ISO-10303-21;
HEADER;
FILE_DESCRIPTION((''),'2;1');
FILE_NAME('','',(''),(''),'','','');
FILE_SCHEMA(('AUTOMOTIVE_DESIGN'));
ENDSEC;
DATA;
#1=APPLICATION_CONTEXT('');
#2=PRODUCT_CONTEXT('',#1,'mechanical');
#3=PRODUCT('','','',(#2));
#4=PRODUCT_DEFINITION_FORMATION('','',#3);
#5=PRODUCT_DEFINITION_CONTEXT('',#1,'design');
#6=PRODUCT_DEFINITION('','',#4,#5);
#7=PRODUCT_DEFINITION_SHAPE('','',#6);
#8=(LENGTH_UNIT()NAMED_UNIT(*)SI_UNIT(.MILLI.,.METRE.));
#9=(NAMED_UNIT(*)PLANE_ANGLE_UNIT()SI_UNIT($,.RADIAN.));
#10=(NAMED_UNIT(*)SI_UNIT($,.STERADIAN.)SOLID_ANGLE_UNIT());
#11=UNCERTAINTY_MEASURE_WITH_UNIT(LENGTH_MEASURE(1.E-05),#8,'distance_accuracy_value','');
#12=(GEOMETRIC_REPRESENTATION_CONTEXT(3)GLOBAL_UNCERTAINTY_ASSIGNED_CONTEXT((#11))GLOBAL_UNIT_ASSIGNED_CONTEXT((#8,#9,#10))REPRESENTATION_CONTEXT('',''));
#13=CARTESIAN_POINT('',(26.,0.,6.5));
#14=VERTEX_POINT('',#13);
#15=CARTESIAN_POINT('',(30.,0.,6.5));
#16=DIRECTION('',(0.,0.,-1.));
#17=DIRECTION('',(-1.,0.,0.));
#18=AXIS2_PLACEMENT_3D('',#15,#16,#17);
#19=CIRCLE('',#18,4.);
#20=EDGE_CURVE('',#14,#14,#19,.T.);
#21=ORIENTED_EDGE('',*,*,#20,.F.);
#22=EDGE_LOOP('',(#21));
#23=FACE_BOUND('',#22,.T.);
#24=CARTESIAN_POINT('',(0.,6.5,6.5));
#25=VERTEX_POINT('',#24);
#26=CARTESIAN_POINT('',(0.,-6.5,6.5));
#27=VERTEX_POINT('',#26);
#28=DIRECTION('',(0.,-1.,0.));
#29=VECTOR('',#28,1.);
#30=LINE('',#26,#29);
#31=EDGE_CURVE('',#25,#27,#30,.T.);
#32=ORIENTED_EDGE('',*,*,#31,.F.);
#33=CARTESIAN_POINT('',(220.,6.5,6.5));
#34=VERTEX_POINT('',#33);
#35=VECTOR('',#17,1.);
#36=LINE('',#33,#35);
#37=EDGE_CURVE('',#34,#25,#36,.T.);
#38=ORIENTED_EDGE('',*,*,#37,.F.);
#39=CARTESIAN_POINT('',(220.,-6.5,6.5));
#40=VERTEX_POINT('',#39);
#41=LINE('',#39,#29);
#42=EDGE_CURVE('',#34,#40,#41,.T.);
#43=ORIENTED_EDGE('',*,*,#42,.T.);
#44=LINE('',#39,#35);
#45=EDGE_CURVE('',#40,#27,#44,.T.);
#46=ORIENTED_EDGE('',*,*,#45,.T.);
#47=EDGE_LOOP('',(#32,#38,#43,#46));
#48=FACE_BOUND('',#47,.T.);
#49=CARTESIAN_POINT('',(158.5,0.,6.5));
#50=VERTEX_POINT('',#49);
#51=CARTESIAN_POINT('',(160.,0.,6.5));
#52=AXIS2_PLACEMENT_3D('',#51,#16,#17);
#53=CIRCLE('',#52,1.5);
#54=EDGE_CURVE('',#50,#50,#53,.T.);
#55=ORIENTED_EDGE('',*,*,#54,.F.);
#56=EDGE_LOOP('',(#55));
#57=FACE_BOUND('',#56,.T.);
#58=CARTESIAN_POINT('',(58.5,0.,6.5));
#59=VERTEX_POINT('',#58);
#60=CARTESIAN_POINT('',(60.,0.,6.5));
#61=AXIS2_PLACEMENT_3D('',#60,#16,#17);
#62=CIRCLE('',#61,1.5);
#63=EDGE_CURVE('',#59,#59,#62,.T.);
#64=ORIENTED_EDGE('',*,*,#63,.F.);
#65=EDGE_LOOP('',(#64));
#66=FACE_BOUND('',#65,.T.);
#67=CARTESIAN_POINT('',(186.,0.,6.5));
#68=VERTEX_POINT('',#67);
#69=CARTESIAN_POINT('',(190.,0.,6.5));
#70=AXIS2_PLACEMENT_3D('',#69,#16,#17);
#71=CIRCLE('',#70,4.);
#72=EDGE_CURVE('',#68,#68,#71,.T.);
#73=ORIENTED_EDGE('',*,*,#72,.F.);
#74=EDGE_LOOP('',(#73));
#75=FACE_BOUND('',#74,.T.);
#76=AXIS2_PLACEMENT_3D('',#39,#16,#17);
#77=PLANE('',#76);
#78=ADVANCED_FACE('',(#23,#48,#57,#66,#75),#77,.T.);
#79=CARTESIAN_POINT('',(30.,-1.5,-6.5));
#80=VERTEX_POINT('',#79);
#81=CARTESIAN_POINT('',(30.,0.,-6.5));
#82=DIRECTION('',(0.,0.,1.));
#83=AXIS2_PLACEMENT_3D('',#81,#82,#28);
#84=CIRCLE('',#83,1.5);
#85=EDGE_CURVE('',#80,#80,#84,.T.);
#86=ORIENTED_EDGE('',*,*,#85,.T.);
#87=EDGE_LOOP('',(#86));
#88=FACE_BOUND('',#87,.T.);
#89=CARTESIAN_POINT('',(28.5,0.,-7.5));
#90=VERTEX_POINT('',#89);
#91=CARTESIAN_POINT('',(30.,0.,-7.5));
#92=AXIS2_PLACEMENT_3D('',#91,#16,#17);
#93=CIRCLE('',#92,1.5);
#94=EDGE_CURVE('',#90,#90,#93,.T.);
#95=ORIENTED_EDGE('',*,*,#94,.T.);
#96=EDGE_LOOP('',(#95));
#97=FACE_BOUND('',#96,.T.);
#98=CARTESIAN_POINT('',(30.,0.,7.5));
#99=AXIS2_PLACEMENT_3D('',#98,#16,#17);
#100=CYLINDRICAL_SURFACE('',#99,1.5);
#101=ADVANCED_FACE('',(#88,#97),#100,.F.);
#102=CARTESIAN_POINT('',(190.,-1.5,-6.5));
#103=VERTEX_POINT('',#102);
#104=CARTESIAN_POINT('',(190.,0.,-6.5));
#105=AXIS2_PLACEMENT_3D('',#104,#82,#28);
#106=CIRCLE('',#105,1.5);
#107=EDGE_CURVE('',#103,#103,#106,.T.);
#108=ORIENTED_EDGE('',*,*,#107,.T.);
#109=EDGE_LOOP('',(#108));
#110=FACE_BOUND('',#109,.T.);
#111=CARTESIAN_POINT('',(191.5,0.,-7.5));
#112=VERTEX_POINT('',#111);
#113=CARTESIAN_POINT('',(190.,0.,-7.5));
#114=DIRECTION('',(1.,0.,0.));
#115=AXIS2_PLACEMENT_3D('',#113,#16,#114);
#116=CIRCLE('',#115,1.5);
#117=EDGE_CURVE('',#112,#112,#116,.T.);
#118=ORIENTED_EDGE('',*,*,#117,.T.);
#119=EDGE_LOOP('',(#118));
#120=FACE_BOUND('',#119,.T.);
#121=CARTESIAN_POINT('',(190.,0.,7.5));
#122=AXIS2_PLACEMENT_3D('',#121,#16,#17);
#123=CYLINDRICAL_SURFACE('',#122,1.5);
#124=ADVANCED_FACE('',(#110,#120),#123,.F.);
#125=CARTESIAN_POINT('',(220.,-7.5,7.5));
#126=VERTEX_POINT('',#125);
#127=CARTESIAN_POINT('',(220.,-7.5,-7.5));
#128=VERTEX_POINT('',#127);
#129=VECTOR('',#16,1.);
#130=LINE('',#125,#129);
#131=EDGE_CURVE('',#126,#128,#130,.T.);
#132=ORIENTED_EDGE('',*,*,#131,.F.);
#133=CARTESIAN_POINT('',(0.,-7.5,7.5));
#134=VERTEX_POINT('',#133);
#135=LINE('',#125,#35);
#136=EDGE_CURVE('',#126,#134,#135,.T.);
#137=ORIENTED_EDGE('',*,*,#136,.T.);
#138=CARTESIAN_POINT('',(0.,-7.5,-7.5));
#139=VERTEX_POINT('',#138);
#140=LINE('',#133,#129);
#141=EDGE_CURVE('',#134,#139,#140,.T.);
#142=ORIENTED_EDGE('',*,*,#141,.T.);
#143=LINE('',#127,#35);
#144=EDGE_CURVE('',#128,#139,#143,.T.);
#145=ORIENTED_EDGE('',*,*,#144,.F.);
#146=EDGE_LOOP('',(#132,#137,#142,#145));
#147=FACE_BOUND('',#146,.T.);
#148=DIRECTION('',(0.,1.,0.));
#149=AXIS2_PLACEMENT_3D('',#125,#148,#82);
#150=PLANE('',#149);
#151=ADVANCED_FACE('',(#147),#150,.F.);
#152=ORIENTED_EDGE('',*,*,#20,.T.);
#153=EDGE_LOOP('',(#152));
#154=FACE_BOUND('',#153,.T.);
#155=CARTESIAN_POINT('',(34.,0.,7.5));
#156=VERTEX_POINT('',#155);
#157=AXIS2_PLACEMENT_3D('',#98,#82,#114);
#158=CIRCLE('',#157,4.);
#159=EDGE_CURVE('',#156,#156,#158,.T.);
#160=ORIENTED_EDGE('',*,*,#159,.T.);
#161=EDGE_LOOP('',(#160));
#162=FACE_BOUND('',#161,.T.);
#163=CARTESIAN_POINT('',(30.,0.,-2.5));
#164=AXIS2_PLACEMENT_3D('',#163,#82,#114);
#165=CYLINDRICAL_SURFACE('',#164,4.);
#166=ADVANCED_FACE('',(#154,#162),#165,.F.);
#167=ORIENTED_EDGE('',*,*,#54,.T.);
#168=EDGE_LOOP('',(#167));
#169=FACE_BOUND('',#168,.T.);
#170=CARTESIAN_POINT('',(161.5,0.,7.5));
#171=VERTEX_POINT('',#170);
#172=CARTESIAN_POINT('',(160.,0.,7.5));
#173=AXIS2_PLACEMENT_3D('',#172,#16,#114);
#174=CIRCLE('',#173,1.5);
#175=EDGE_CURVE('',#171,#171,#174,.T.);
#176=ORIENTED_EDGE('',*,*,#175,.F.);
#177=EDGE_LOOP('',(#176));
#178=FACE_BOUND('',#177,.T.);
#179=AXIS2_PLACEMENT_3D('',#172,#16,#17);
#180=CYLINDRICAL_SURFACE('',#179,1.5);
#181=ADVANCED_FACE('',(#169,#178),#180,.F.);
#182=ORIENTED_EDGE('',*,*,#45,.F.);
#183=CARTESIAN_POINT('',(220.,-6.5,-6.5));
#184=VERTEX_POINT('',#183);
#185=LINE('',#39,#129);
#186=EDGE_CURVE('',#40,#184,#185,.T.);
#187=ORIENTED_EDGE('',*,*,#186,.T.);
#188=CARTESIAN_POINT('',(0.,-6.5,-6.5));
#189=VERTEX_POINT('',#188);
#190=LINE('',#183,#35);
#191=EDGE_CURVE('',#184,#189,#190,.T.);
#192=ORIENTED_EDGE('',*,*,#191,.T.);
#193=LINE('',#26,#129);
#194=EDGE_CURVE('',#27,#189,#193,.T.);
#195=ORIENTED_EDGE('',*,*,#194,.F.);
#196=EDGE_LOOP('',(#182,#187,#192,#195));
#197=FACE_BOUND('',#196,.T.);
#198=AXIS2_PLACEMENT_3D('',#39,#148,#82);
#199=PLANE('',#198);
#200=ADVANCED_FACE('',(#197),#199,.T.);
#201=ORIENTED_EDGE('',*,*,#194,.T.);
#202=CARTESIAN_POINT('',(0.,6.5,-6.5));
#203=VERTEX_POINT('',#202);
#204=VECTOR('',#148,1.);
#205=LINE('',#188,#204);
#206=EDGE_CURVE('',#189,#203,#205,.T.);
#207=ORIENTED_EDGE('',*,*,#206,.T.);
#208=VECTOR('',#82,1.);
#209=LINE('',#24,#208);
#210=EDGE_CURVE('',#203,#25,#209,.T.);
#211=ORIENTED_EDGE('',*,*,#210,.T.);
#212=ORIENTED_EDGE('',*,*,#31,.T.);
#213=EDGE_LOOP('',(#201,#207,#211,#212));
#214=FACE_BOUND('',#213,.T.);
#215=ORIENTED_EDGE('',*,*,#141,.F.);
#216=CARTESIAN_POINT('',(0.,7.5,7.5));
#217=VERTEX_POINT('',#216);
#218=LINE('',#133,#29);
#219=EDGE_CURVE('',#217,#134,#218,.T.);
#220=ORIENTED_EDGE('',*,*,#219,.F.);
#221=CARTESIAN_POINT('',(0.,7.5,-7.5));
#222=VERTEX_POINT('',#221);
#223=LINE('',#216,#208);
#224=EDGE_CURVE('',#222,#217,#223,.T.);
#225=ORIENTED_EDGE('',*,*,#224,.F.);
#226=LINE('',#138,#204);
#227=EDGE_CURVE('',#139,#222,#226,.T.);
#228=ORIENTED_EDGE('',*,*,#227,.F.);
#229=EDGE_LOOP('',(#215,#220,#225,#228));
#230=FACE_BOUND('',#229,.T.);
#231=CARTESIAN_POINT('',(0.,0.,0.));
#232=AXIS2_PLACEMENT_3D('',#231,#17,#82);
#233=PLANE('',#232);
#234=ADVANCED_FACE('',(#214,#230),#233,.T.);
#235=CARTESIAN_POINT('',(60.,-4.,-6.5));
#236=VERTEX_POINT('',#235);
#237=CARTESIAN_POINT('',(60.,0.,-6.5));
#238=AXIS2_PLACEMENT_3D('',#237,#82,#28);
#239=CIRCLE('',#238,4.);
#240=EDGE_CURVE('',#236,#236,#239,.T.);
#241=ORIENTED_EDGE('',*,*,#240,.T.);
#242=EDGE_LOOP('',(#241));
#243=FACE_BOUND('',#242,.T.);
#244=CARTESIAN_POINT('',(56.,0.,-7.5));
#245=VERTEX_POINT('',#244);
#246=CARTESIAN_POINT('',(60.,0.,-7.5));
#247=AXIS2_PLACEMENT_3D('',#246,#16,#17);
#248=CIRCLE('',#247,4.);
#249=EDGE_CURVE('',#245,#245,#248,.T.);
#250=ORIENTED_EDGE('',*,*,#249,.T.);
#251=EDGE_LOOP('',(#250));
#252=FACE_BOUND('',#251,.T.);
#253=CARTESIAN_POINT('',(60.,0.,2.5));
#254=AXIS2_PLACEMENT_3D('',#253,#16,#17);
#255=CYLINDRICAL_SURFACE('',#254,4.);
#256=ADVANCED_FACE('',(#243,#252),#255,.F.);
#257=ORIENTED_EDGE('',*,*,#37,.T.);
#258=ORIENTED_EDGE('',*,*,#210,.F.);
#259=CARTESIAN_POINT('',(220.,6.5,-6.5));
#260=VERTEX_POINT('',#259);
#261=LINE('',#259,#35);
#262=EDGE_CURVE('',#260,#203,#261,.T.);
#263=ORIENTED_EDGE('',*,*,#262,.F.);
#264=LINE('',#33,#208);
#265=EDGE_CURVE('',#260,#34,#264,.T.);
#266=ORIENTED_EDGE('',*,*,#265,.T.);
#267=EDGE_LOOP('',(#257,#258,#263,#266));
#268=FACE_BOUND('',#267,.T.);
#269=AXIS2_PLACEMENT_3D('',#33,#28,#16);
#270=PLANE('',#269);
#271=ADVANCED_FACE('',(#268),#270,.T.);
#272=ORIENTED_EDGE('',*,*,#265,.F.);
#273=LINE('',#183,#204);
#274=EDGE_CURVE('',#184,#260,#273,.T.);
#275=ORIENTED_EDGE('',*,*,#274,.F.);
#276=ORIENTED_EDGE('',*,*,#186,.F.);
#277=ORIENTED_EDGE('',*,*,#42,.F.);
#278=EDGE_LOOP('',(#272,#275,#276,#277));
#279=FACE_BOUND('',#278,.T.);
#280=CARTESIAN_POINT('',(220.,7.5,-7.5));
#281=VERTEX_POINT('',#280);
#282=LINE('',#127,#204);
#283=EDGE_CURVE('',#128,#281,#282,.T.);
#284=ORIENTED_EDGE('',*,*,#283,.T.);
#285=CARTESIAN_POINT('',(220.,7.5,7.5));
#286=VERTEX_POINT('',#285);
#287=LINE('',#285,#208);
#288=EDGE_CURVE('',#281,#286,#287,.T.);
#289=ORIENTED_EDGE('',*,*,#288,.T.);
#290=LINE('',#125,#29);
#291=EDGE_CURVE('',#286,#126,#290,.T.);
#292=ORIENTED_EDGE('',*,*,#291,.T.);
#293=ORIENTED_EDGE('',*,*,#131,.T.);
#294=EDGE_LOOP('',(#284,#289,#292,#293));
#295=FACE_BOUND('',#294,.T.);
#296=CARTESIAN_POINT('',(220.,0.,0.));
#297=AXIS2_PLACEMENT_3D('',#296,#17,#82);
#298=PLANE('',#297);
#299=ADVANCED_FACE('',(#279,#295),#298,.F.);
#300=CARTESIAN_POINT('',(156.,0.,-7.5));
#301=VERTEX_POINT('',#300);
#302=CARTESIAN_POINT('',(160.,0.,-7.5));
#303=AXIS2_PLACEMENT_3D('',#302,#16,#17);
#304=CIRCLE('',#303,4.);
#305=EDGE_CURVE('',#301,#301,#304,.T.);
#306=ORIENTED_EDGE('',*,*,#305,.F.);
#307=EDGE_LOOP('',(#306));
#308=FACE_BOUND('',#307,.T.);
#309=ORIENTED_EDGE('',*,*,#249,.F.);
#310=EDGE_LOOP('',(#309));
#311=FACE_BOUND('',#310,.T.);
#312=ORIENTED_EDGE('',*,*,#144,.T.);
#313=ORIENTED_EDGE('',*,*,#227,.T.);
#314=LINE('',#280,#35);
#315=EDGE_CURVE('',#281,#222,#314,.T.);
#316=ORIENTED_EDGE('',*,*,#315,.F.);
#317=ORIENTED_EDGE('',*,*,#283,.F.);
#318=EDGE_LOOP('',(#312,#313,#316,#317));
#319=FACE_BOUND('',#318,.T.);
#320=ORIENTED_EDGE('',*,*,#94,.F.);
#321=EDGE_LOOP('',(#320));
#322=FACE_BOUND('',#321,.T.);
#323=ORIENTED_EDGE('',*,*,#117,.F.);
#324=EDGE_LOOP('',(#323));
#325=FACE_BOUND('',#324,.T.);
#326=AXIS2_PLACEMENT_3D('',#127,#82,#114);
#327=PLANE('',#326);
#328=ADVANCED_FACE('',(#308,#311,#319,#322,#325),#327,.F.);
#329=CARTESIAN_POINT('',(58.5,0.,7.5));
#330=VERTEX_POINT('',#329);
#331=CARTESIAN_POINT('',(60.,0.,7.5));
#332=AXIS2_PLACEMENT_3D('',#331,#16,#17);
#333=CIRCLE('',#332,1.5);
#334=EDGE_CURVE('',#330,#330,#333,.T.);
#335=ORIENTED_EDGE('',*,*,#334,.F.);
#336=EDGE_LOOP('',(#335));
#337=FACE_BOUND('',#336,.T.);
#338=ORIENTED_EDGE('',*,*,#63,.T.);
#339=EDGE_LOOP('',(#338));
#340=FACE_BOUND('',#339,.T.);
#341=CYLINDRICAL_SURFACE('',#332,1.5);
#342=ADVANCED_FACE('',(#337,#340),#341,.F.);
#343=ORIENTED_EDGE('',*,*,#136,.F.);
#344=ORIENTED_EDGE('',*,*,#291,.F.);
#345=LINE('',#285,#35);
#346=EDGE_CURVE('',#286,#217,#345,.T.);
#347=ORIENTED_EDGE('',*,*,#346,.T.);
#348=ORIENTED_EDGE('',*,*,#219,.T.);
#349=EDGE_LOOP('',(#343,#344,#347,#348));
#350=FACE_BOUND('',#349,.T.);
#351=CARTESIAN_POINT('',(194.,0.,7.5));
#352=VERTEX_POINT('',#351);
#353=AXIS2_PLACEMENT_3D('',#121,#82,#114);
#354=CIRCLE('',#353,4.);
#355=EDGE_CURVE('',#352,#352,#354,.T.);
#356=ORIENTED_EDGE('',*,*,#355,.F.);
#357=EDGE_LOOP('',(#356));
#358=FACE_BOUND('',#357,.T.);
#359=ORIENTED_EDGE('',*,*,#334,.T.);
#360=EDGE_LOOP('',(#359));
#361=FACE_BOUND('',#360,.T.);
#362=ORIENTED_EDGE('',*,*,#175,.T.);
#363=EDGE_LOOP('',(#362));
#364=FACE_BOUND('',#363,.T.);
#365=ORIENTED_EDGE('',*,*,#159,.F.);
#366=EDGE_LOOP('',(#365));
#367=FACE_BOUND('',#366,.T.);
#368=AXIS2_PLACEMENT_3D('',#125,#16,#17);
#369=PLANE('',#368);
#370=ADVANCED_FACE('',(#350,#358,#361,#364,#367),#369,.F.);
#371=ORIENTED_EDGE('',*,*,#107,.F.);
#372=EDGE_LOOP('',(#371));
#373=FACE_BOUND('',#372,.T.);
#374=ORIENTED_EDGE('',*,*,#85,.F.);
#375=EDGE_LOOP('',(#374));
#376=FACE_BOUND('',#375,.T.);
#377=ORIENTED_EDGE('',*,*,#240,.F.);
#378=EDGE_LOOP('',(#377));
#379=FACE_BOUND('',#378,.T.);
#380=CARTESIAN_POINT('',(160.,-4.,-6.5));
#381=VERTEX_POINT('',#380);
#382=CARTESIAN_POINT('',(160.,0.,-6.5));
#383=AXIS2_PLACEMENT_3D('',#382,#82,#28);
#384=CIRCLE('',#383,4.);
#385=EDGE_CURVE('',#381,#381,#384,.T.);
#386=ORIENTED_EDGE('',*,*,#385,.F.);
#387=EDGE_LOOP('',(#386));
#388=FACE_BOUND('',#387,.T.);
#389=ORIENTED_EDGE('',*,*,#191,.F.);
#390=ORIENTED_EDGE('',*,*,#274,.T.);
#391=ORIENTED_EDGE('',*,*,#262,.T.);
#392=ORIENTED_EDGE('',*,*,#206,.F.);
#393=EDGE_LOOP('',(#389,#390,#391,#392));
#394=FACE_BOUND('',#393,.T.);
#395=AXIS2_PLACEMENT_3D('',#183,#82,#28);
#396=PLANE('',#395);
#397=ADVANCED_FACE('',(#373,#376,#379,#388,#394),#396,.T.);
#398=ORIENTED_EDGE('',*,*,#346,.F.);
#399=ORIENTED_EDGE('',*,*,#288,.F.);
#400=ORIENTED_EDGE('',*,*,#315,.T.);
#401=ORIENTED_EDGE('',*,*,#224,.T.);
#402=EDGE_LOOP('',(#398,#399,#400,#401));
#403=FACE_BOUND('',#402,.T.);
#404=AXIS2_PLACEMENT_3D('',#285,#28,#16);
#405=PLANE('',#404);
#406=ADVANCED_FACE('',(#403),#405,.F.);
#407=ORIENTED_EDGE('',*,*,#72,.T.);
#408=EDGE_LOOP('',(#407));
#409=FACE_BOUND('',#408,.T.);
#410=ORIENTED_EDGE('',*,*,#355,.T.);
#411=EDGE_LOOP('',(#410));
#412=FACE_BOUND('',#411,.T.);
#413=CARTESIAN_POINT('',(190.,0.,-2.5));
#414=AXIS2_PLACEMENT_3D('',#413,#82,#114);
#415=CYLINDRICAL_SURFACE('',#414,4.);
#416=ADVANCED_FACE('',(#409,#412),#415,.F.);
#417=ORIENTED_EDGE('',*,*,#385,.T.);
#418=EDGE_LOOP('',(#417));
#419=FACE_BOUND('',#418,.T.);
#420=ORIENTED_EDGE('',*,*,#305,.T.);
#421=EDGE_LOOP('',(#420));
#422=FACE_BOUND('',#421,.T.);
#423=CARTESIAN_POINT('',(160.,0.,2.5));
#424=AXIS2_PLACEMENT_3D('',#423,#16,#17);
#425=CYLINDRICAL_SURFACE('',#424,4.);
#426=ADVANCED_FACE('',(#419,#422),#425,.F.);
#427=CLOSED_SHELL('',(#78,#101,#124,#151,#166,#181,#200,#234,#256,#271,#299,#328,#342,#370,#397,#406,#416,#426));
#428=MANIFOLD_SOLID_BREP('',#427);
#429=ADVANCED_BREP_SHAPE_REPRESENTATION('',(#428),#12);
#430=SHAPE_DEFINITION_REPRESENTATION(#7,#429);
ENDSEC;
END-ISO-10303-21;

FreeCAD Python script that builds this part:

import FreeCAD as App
import Part
import Sketcher

V = App.Vector
Q = App.Units.Quantity


def add_polygon(sketch, points):
    """Adds a closed chain of lines whose ends are joined by coincident constraints."""
    first, n = sketch.GeometryCount, len(points)
    for a, b in zip(points, points[1:] + points[:1]):
        sketch.addGeometry(Part.LineSegment(App.Vector(*a, 0), App.Vector(*b, 0)), False)
    for i in range(n):
        sketch.addConstraint(Sketcher.Constraint("Coincident", first + i, 2, first + (i + 1) % n, 1))

doc = App.newDocument("Part")
body = doc.addObject("PartDesign::Body", "Body")

sketch1 = body.newObject("Sketcher::SketchObject", "Sketch")
sketch1.AttachmentSupport = (doc.getObject("YZ_Plane"), [""])
sketch1.MapMode = "FlatFace"
add_polygon(sketch1, [(8, 8), (-8, 8), (-8, -8), (8, -8)])
add_polygon(sketch1, [(-6, -6), (-6, 6), (6, 6), (6, -6)])
sketch1.addConstraint([
    Sketcher.Constraint("Horizontal", 0),
    Sketcher.Constraint("Vertical", 1),
    Sketcher.Constraint("Horizontal", 2),
    Sketcher.Constraint("Vertical", 3),
    Sketcher.Constraint("Vertical", 4),
    Sketcher.Constraint("Horizontal", 5),
    Sketcher.Constraint("Vertical", 6),
    Sketcher.Constraint("Horizontal", 7),
    Sketcher.Constraint("Symmetric", 0, 2, 2, 2, -1, 1),
    Sketcher.Constraint("Symmetric", 4, 2, 6, 2, -1, 1),
    Sketcher.Constraint("Equal", 2, 1),
    Sketcher.Constraint("Equal", 7, 4),
    Sketcher.Constraint("DistanceX", 0, 2, 0, 1, Q("15 mm")),
    Sketcher.Constraint("DistanceX", 5, 1, 5, 2, Q("13 mm")),
])
pad1 = body.newObject("PartDesign::Pad", "Pad")
pad1.Profile = sketch1
pad1.Length = 220

sketch2 = body.newObject("Sketcher::SketchObject", "Sketch001")
sketch2.AttachmentSupport = (doc.getObject("XY_Plane"), [""])
sketch2.MapMode = "FlatFace"
sketch2.AttachmentOffset = App.Placement(V(0, 0, -7.5), App.Rotation())
sketch2.addGeometry([
    Part.Circle(V(30, 0, 0), V(0, 0, 1), 1.5),
    Part.Circle(V(60, 0, 0), V(0, 0, 1), 1.5),
    Part.Circle(V(160, 0, 0), V(0, 0, 1), 1.5),
    Part.Circle(V(190, 0, 0), V(0, 0, 1), 1.5),
], False)
sketch2.addConstraint([
    Sketcher.Constraint("Equal", 0, 1),
    Sketcher.Constraint("Equal", 1, 2),
    Sketcher.Constraint("Equal", 2, 3),
    Sketcher.Constraint("PointOnObject", 0, 3, -1),
    Sketcher.Constraint("PointOnObject", 1, 3, -1),
    Sketcher.Constraint("PointOnObject", 2, 3, -1),
    Sketcher.Constraint("PointOnObject", 3, 3, -1),
    Sketcher.Constraint("Diameter", 0, Q("3 mm")),
    Sketcher.Constraint("DistanceX", -1, 1, 0, 3, Q("30 mm")),
    Sketcher.Constraint("DistanceX", -1, 1, 1, 3, Q("60 mm")),
    Sketcher.Constraint("DistanceX", -1, 1, 2, 3, Q("160 mm")),
    Sketcher.Constraint("DistanceX", -1, 1, 3, 3, Q("190 mm")),
])
pocket1 = body.newObject("PartDesign::Pocket", "Pocket")
pocket1.Profile = sketch2
pocket1.Type = "ThroughAll"
pocket1.Reversed = True

sketch3 = body.newObject("Sketcher::SketchObject", "Sketch002")
sketch3.AttachmentSupport = (doc.getObject("XY_Plane"), [""])
sketch3.MapMode = "FlatFace"
sketch3.AttachmentOffset = App.Placement(V(0, 0, -7.5), App.Rotation())
sketch3.addGeometry([
    Part.Circle(V(160, 0, 0), V(0, 0, 1), 4),
    Part.Circle(V(60, 0, 0), V(0, 0, 1), 4),
], False)
sketch3.addConstraint([
    Sketcher.Constraint("Equal", 0, 1),
    Sketcher.Constraint("PointOnObject", 0, 3, -1),
    Sketcher.Constraint("PointOnObject", 1, 3, -1),
    Sketcher.Constraint("Diameter", 0, Q("8 mm")),
    Sketcher.Constraint("DistanceX", -1, 1, 0, 3, Q("160 mm")),
    Sketcher.Constraint("DistanceX", -1, 1, 1, 3, Q("60 mm")),
])
pocket2 = body.newObject("PartDesign::Pocket", "Pocket001")
pocket2.Profile = sketch3
pocket2.Length = 10
pocket2.Reversed = True

sketch4 = body.newObject("Sketcher::SketchObject", "Sketch003")
sketch4.AttachmentSupport = (doc.getObject("XY_Plane"), [""])
sketch4.MapMode = "FlatFace"
sketch4.AttachmentOffset = App.Placement(V(0, 0, 7.5), App.Rotation())
sketch4.addGeometry([
    Part.Circle(V(190, 0, 0), V(0, 0, 1), 4),
    Part.Circle(V(30, 0, 0), V(0, 0, 1), 4),
], False)
sketch4.addConstraint([
    Sketcher.Constraint("Equal", 0, 1),
    Sketcher.Constraint("PointOnObject", 0, 3, -1),
    Sketcher.Constraint("PointOnObject", 1, 3, -1),
    Sketcher.Constraint("Diameter", 0, Q("8 mm")),
    Sketcher.Constraint("DistanceX", -1, 1, 0, 3, Q("190 mm")),
    Sketcher.Constraint("DistanceX", -1, 1, 1, 3, Q("30 mm")),
])
pocket3 = body.newObject("PartDesign::Pocket", "Pocket002")
pocket3.Profile = sketch4
pocket3.Length = 10

doc.recompute()
